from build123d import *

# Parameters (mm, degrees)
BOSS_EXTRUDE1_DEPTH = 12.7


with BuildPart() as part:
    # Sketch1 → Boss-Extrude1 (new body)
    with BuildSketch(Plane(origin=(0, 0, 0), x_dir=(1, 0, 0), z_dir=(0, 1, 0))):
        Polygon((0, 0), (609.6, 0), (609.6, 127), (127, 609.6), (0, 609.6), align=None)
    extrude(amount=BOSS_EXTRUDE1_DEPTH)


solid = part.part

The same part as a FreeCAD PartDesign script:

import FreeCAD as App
import Part
import Sketcher
Q = App.Units.Quantity


def add_polygon(sketch, points):
    """Adds a closed chain of lines whose ends are joined by coincident constraints."""
    first, n = sketch.GeometryCount, len(points)
    for a, b in zip(points, points[1:] + points[:1]):
        sketch.addGeometry(Part.LineSegment(App.Vector(*a, 0), App.Vector(*b, 0)), False)
    for i in range(n):
        sketch.addConstraint(Sketcher.Constraint("Coincident", first + i, 2, first + (i + 1) % n, 1))

doc = App.newDocument("Part")
body = doc.addObject("PartDesign::Body", "Body")

# Sketch on XZ plane
sketch1 = doc.addObject("Sketcher::SketchObject", "Sketch")
body.addObject(sketch1)
sketch1.AttachmentSupport = (doc.XZ_Plane, [""])
sketch1.MapMode = "FlatFace"
add_polygon(sketch1, [(0, 0), (610, 0), (610, -127), (127, -610), (0, -610)])  # lines 0-4
sketch1.addConstraint([
    Sketcher.Constraint("Horizontal", 0),
    Sketcher.Constraint("Vertical", 1),
    Sketcher.Constraint("Horizontal", 3),
    Sketcher.Constraint("Vertical", 4),
    Sketcher.Constraint("Coincident", 4, 2, -1, 1),
    Sketcher.Constraint("Equal", 3, 1),
    Sketcher.Constraint("Equal", 0, 4),
    Sketcher.Constraint("DistanceX", 0, 1, 0, 2, Q("24 in")),
    Sketcher.Constraint("DistanceX", 3, 2, 3, 1, Q("5 in")),
])
pad1 = doc.addObject("PartDesign::Pad", "Pad")
body.addObject(pad1)
pad1.Profile = sketch1
pad1.Length = Q("0.5 in")
pad1.Reversed = True

doc.recompute()
